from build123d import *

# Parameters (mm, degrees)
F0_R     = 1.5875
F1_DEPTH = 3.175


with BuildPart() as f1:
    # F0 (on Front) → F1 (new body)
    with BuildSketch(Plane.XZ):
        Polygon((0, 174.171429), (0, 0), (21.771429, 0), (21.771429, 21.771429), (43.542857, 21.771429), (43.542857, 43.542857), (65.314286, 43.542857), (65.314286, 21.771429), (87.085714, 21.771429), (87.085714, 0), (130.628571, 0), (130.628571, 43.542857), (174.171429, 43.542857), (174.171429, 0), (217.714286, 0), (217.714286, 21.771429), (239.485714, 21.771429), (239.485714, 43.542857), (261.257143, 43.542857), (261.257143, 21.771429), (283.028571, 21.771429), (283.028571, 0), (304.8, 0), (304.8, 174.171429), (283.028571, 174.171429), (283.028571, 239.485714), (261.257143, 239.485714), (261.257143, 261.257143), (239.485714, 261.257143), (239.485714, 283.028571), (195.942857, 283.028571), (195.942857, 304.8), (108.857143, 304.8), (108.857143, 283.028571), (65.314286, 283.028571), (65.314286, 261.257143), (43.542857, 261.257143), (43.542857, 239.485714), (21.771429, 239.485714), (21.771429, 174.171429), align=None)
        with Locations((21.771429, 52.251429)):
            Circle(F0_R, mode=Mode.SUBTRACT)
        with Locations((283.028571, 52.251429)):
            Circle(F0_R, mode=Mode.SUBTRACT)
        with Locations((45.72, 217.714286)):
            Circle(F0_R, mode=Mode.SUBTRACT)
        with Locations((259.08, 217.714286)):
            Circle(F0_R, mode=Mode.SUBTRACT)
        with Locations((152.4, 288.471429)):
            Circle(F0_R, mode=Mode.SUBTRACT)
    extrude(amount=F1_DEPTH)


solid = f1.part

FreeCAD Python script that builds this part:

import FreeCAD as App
import Part
import Sketcher
from FreeCAD import Vector
Q = App.Units.Quantity


def add_polygon(sketch, points):
    """Adds a closed chain of lines whose ends are joined by coincident constraints."""
    first, n = sketch.GeometryCount, len(points)
    for a, b in zip(points, points[1:] + points[:1]):
        sketch.addGeometry(Part.LineSegment(App.Vector(*a, 0), App.Vector(*b, 0)), False)
    for i in range(n):
        sketch.addConstraint(Sketcher.Constraint("Coincident", first + i, 2, first + (i + 1) % n, 1))

doc = App.newDocument("Part")
params = doc.addObject("Spreadsheet::Sheet", "Params")
for row, (alias, value) in enumerate([
    ("sketch1_diameter", "0.125 in"),
    ("pad1_length", "0.125 in"),
], start=1):
    params.set(f"A{row}", alias)
    params.set(f"B{row}", "=" + value)
    params.setAlias(f"B{row}", alias)

body = doc.addObject("PartDesign::Body", "Body")

sketch1 = body.newObject("Sketcher::SketchObject", "Sketch")
sketch1.AttachmentSupport = (doc.getObject("XZ_Plane"), [""])
sketch1.MapMode = "FlatFace"
add_polygon(sketch1, [(0, 174.2), (0, 0), (21.8, 0), (21.8, 21.8), (43.5, 21.8), (43.5, 43.5), (65.3, 43.5), (65.3, 21.8), (87.1, 21.8), (87.1, 0), (130.6, 0), (130.6, 43.5), (174.2, 43.5), (174.2, 0), (217.7, 0), (217.7, 21.8), (239.5, 21.8), (239.5, 43.5), (261.3, 43.5), (261.3, 21.8), (283, 21.8), (283, 0), (304.8, 0), (304.8, 174.2), (283, 174.2), (283, 239.5), (261.3, 239.5), (261.3, 261.3), (239.5, 261.3), (239.5, 283), (195.9, 283), (195.9, 304.8), (108.9, 304.8), (108.9, 283), (65.3, 283), (65.3, 261.3), (43.5, 261.3), (43.5, 239.5), (21.8, 239.5), (21.8, 174.2)])
sketch1.addGeometry(Part.Circle(Vector(21.8, 52.3, 0), Vector(0, 0, 1), 1.6), False)
sketch1.addGeometry(Part.Circle(Vector(283, 52.3, 0), Vector(0, 0, 1), 1.6), False)
sketch1.addGeometry(Part.Circle(Vector(45.7, 217.7, 0), Vector(0, 0, 1), 1.6), False)
sketch1.addGeometry(Part.Circle(Vector(259.1, 217.7, 0), Vector(0, 0, 1), 1.6), False)
sketch1.addGeometry(Part.Circle(Vector(152.4, 288.5, 0), Vector(0, 0, 1), 1.6), False)
sketch1.addConstraint(Sketcher.Constraint("Vertical", 0))
sketch1.addConstraint(Sketcher.Constraint("Horizontal", 1))
sketch1.addConstraint(Sketcher.Constraint("Vertical", 2))
sketch1.addConstraint(Sketcher.Constraint("Horizontal", 3))
sketch1.addConstraint(Sketcher.Constraint("Vertical", 4))
sketch1.addConstraint(Sketcher.Constraint("Horizontal", 5))
sketch1.addConstraint(Sketcher.Constraint("Vertical", 6))
sketch1.addConstraint(Sketcher.Constraint("Horizontal", 7))
sketch1.addConstraint(Sketcher.Constraint("Vertical", 8))
sketch1.addConstraint(Sketcher.Constraint("Horizontal", 9))
sketch1.addConstraint(Sketcher.Constraint("Vertical", 10))
sketch1.addConstraint(Sketcher.Constraint("Horizontal", 11))
sketch1.addConstraint(Sketcher.Constraint("Vertical", 12))
sketch1.addConstraint(Sketcher.Constraint("Horizontal", 13))
sketch1.addConstraint(Sketcher.Constraint("Vertical", 14))
sketch1.addConstraint(Sketcher.Constraint("Horizontal", 15))
sketch1.addConstraint(Sketcher.Constraint("Vertical", 16))
sketch1.addConstraint(Sketcher.Constraint("Horizontal", 17))
sketch1.addConstraint(Sketcher.Constraint("Vertical", 18))
sketch1.addConstraint(Sketcher.Constraint("Horizontal", 19))
sketch1.addConstraint(Sketcher.Constraint("Vertical", 20))
sketch1.addConstraint(Sketcher.Constraint("Horizontal", 21))
sketch1.addConstraint(Sketcher.Constraint("Vertical", 22))
sketch1.addConstraint(Sketcher.Constraint("Horizontal", 23))
sketch1.addConstraint(Sketcher.Constraint("Vertical", 24))
sketch1.addConstraint(Sketcher.Constraint("Horizontal", 25))
sketch1.addConstraint(Sketcher.Constraint("Vertical", 26))
sketch1.addConstraint(Sketcher.Constraint("Horizontal", 27))
sketch1.addConstraint(Sketcher.Constraint("Vertical", 28))
sketch1.addConstraint(Sketcher.Constraint("Horizontal", 29))
sketch1.addConstraint(Sketcher.Constraint("Vertical", 30))
sketch1.addConstraint(Sketcher.Constraint("Horizontal", 31))
sketch1.addConstraint(Sketcher.Constraint("Vertical", 32))
sketch1.addConstraint(Sketcher.Constraint("Horizontal", 33))
sketch1.addConstraint(Sketcher.Constraint("Vertical", 34))
sketch1.addConstraint(Sketcher.Constraint("Horizontal", 35))
sketch1.addConstraint(Sketcher.Constraint("Vertical", 36))
sketch1.addConstraint(Sketcher.Constraint("Horizontal", 37))
sketch1.addConstraint(Sketcher.Constraint("Vertical", 38))
sketch1.addConstraint(Sketcher.Constraint("Horizontal", 39))
sketch1.addConstraint(Sketcher.Constraint("Coincident", 0, 2, -1, 1))
sketch1.addConstraint(Sketcher.Constraint("Equal", 40, 41))
sketch1.addConstraint(Sketcher.Constraint("Equal", 41, 42))
sketch1.addConstraint(Sketcher.Constraint("Equal", 42, 43))
sketch1.addConstraint(Sketcher.Constraint("Equal", 43, 44))
sketch1.addConstraint(Sketcher.Constraint("PointOnObject", 8, 2, -1))
sketch1.addConstraint(Sketcher.Constraint("PointOnObject", 12, 2, -1))
sketch1.addConstraint(Sketcher.Constraint("PointOnObject", 20, 2, -1))
sketch1.addConstraint(Sketcher.Constraint("Horizontal", 40, 3, 41, 3))
sketch1.addConstraint(Sketcher.Constraint("Horizontal", 42, 3, 43, 3))
sketch1.addConstraint(Sketcher.Constraint("Horizontal", 3, 2, 6, 2))
sketch1.addConstraint(Sketcher.Constraint("Horizontal", 5, 2, 10, 2))
sketch1.addConstraint(Sketcher.Constraint("Horizontal", 7, 2, 14, 2))
sketch1.addConstraint(Sketcher.Constraint("Horizontal", 11, 2, 16, 2))
sketch1.addConstraint(Sketcher.Constraint("Horizontal", 15, 2, 18, 2))
sketch1.addConstraint(Sketcher.Constraint("Horizontal", 29, 2, 32, 2))
sketch1.addConstraint(Sketcher.Constraint("Horizontal", 27, 2, 34, 2))
sketch1.addConstraint(Sketcher.Constraint("Horizontal", 25, 2, 36, 2))
sketch1.addConstraint(Sketcher.Constraint("Horizontal", 23, 2, 38, 2))
sketch1.addConstraint(Sketcher.Constraint("Vertical", 40, 3, 1, 2))
sketch1.addConstraint(Sketcher.Constraint("Vertical", 41, 3, 19, 2))
sketch1.addConstraint(Sketcher.Constraint("Vertical", 20, 2, 23, 2))
sketch1.addConstraint(Sketcher.Constraint("Vertical", 18, 2, 25, 2))
sketch1.addConstraint(Sketcher.Constraint("Vertical", 16, 2, 27, 2))
sketch1.addConstraint(Sketcher.Constraint("Vertical", 6, 2, 33, 2))
sketch1.addConstraint(Sketcher.Constraint("Vertical", 4, 2, 35, 2))
sketch1.addConstraint(Sketcher.Constraint("Vertical", 2, 2, 37, 2))
sketch1.addConstraint(Sketcher.Constraint("Equal", 1, 3))
sketch1.addConstraint(Sketcher.Constraint("Equal", 3, 5))
sketch1.addConstraint(Sketcher.Constraint("Equal", 5, 7))
sketch1.addConstraint(Sketcher.Constraint("Equal", 9, 11))
sketch1.addConstraint(Sketcher.Constraint("Equal", 11, 13))
sketch1.addConstraint(Sketcher.Constraint("Equal", 7, 15))
sketch1.addConstraint(Sketcher.Constraint("Equal", 15, 17))
sketch1.addConstraint(Sketcher.Constraint("Equal", 17, 19))
sketch1.addConstraint(Sketcher.Constraint("Equal", 19, 21))
sketch1.addConstraint(Sketcher.Constraint("Equal", 13, 29))
sketch1.addConstraint(Sketcher.Constraint("Equal", 29, 33))
sketch1.addConstraint(Sketcher.Constraint("Equal", 39, 2))
sketch1.addConstraint(Sketcher.Constraint("Equal", 2, 4))
sketch1.addConstraint(Sketcher.Constraint("Equal", 33, 10))
sketch1.addConstraint(Sketcher.Constraint("Equal", 20, 26))
sketch1.addConstraint(Sketcher.Constraint("Equal", 26, 28))
sketch1.addConstraint(Sketcher.Constraint("Equal", 28, 30))
sketch1.addConstraint(Sketcher.Constraint("Diameter", 40, Q("0.125 in")))
sketch1.addConstraint(Sketcher.Constraint("DistanceX", -1, 1, 44, 3, Q("6 in")))
sketch1.addConstraint(Sketcher.Constraint("DistanceX", -1, 1, 21, 2, Q("12 in")))
sketch1.addConstraint(Sketcher.Constraint("DistanceY", -1, 1, 30, 2, Q("12 in")))
sketch1.addConstraint(Sketcher.Constraint("DistanceY", 19, 2, 22, 2, Q("6 in")))
sketch1.addConstraint(Sketcher.Constraint("DistanceX", -1, 1, 42, 3, Q("1.8 in")))
sketch1.addConstraint(Sketcher.Constraint("DistanceX", -1, 1, 43, 3, Q("10.2 in")))
sketch1.addConstraint(Sketcher.Constraint("DistanceY", 40, 3, 44, 3, Q("9.3 in")))
sketch1.addConstraint(Sketcher.Constraint("DistanceY", 2, 2, 40, 3, Q("1.2 in")))
sketch1.addConstraint(Sketcher.Constraint("DistanceY", 43, 3, 24, 2, Q("21.771428 mm")))
sketch1.setExpression("Constraints[124]", "Params.sketch1_diameter")
pad1 = body.newObject("PartDesign::Pad", "Pad")
pad1.Profile = sketch1
pad1.setExpression("Length", "Params.pad1_length")

doc.recompute()
